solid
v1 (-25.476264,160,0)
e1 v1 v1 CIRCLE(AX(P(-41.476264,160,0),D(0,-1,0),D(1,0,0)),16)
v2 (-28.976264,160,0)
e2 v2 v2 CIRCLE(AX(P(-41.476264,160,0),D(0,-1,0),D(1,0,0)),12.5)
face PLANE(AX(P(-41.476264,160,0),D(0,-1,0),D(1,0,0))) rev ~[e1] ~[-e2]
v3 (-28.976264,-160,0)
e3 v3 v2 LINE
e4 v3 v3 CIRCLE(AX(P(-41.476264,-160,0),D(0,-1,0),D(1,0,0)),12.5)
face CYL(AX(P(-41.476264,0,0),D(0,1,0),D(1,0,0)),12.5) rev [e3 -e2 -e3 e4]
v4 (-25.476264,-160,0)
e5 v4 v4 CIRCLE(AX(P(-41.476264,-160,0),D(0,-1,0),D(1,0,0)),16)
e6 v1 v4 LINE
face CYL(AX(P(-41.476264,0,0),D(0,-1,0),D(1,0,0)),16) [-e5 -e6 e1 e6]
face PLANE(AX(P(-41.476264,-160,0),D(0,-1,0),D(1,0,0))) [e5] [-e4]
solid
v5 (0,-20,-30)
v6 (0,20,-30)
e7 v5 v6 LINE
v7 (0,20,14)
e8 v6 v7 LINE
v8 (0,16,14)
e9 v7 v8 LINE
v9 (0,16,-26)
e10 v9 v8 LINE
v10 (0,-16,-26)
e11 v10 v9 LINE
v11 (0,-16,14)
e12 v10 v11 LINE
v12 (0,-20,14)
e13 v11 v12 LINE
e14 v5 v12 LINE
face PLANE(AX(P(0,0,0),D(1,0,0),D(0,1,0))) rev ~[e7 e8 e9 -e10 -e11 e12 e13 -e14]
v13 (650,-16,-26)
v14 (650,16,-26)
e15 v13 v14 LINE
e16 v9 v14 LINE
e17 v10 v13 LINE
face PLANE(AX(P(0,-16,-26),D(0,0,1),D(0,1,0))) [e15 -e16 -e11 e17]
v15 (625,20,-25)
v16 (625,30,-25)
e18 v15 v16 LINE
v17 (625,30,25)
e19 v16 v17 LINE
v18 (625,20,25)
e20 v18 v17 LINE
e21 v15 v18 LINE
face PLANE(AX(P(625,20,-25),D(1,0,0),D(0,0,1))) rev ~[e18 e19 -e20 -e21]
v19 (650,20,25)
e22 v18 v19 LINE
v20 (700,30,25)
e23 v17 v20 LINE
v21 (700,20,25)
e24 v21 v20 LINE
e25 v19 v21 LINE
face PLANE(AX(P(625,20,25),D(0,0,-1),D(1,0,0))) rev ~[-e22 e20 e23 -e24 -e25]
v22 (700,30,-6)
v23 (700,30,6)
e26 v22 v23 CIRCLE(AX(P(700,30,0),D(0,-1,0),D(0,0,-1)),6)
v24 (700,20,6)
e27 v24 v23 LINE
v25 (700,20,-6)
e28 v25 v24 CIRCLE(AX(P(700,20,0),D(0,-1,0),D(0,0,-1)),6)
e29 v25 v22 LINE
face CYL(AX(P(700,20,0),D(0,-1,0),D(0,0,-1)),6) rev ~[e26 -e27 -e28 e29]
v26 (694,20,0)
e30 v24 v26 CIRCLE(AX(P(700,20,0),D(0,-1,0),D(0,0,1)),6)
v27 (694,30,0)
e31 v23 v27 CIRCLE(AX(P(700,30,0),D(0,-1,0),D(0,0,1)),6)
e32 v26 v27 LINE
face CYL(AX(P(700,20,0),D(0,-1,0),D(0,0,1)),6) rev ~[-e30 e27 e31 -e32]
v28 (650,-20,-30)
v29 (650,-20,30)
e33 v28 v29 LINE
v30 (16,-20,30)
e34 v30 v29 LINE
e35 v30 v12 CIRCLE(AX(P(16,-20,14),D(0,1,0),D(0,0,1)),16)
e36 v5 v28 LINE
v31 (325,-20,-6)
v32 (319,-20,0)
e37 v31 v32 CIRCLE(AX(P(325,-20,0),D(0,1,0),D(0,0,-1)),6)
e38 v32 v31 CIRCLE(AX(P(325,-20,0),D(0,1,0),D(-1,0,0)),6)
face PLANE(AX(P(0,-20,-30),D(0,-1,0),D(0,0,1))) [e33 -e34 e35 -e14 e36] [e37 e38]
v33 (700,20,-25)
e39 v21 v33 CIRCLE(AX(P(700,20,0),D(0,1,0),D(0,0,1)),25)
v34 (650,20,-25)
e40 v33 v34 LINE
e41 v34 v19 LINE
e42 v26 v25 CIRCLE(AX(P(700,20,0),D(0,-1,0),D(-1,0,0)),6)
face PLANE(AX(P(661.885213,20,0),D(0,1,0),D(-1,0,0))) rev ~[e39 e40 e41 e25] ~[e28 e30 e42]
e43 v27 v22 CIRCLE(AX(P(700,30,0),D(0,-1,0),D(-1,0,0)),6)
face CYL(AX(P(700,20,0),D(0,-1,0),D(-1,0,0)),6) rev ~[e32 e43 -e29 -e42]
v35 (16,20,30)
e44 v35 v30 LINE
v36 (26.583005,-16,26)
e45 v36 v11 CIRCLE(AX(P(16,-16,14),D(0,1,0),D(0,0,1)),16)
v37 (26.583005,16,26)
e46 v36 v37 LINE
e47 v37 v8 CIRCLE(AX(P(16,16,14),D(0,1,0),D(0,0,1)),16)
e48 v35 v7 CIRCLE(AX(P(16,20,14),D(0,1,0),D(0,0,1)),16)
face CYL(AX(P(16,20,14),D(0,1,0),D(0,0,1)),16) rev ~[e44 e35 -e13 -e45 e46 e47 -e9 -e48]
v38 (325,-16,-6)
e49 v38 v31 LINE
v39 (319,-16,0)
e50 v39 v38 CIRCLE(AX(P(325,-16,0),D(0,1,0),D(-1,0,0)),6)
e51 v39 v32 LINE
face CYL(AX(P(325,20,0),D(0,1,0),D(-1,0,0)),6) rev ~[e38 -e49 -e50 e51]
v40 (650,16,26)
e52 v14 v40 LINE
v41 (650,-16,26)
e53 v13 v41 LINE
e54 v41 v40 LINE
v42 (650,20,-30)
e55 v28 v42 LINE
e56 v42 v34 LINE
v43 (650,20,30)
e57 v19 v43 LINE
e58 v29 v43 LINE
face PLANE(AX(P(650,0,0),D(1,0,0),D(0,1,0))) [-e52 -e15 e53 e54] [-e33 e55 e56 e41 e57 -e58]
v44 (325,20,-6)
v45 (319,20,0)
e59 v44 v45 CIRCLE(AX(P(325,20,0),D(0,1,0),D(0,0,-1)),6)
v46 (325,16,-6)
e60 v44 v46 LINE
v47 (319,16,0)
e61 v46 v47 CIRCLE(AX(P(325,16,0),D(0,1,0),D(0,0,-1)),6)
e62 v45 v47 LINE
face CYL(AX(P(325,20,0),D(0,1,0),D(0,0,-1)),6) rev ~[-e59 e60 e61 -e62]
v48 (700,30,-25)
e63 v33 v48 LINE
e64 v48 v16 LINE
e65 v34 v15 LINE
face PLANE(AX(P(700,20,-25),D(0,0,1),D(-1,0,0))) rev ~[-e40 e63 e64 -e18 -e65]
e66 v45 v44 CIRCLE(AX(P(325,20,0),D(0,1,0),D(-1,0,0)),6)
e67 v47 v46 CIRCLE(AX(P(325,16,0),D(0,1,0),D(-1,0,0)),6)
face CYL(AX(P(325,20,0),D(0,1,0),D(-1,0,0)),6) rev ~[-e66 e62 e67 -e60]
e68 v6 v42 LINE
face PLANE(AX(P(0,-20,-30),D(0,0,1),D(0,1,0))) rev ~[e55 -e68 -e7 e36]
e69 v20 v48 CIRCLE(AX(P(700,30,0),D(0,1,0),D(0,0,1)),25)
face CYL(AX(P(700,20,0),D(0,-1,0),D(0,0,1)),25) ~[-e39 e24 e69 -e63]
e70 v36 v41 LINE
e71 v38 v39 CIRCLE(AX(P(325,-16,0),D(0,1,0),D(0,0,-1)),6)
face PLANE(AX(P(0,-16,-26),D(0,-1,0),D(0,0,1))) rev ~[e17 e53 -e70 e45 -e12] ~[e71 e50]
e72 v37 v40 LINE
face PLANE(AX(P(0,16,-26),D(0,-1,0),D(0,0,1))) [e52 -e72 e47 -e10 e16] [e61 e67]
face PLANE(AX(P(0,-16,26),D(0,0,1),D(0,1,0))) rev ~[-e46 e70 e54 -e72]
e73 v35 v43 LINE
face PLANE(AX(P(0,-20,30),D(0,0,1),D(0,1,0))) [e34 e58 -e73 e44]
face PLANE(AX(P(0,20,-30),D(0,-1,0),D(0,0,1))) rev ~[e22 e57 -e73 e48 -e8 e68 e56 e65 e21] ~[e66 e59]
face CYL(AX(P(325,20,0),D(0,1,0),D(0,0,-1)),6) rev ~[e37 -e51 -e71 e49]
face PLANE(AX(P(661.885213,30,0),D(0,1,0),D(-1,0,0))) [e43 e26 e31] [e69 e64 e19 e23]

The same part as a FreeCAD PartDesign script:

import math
import FreeCAD as App
import Part
import Sketcher
from FreeCAD import Vector

doc = App.newDocument("Part")
body = doc.addObject("PartDesign::Body", "Body")

# Sketch on YZ plane
sketch1 = body.newObject("Sketcher::SketchObject", "Sketch")
sketch1.AttachmentSupport = (doc.getObject("YZ_Plane"), [""])
sketch1.MapMode = "FlatFace"
sketch1.addGeometry([
    Part.LineSegment(Vector(-20, 30, 0), Vector(-20, -30, 0)),  # 0
    Part.LineSegment(Vector(-20, -30, 0), Vector(20, -30, 0)),  # 1
    Part.LineSegment(Vector(20, -30, 0), Vector(20, 30, 0)),  # 2
    Part.LineSegment(Vector(20, 30, 0), Vector(-20, 30, 0)),  # 3
    Part.LineSegment(Vector(16, -26, 0), Vector(-16, -26, 0)),  # 4
    Part.LineSegment(Vector(-16, -26, 0), Vector(-16, 26, 0)),  # 5
    Part.LineSegment(Vector(-16, 26, 0), Vector(16, 26, 0)),  # 6
    Part.LineSegment(Vector(16, 26, 0), Vector(16, -26, 0)),  # 7
], False)
sketch1.addConstraint([
    Sketcher.Constraint("Coincident", 0, 2, 1, 1),
    Sketcher.Constraint("Coincident", 1, 2, 2, 1),
    Sketcher.Constraint("Coincident", 2, 2, 3, 1),
    Sketcher.Constraint("Coincident", 3, 2, 0, 1),
    Sketcher.Constraint("Coincident", 4, 2, 5, 1),
    Sketcher.Constraint("Coincident", 5, 2, 6, 1),
    Sketcher.Constraint("Coincident", 6, 2, 7, 1),
    Sketcher.Constraint("Coincident", 7, 2, 4, 1),
    Sketcher.Constraint("Vertical", 0),
    Sketcher.Constraint("Horizontal", 1),
    Sketcher.Constraint("Vertical", 2),
    Sketcher.Constraint("Horizontal", 3),
    Sketcher.Constraint("Horizontal", 4),
    Sketcher.Constraint("Vertical", 5),
    Sketcher.Constraint("Horizontal", 6),
    Sketcher.Constraint("Vertical", 7),
    Sketcher.Constraint("Symmetric", 0, 2, 2, 2, -1, 1),
    Sketcher.Constraint("Symmetric", 4, 2, 6, 2, -1, 1),
    Sketcher.Constraint("DistanceX", 1, 1, 1, 2, 40.0),
    Sketcher.Constraint("DistanceX", 4, 2, 4, 1, 32.0),
    Sketcher.Constraint("DistanceY", 0, 2, 0, 1, 60.0),
    Sketcher.Constraint("DistanceY", 5, 1, 5, 2, 52.0),
])
pad1 = body.newObject("PartDesign::Pad", "Pad")
pad1.Profile = sketch1
pad1.Length = 650

# Sketch on XZ plane
sketch2 = body.newObject("Sketcher::SketchObject", "Sketch001")
sketch2.AttachmentSupport = (doc.getObject("XZ_Plane"), [""])
sketch2.MapMode = "FlatFace"
sketch2.AttachmentOffset = App.Placement(Vector(0, 0, -20), App.Rotation())
sketch2.addGeometry([
    Part.LineSegment(Vector(625, -25, 0), Vector(625, 25, 0)),  # 0
    Part.LineSegment(Vector(625, 25, 0), Vector(700, 25, 0)),  # 1
    Part.ArcOfCircle(Part.Circle(Vector(700, 0, 0), Vector(0, 0, 1), 25), math.radians(-90), math.radians(90)),  # 2
    Part.LineSegment(Vector(700, -25, 0), Vector(625, -25, 0)),  # 3
    Part.ArcOfCircle(Part.Circle(Vector(700, 0, 0), Vector(0, 0, 1), 6), math.radians(90), math.radians(180)),  # 4
    Part.ArcOfCircle(Part.Circle(Vector(700, 0, 0), Vector(0, 0, 1), 6), math.radians(180), math.radians(270)),  # 5
    Part.ArcOfCircle(Part.Circle(Vector(700, 0, 0), Vector(0, 0, 1), 6), math.radians(-90), math.radians(90)),  # 6
], False)
sketch2.addConstraint([
    Sketcher.Constraint("Coincident", 0, 2, 1, 1),
    Sketcher.Constraint("Tangent", 1, 2, 2, 2),
    Sketcher.Constraint("Tangent", 2, 1, 3, 1),
    Sketcher.Constraint("Coincident", 3, 2, 0, 1),
    Sketcher.Constraint("Tangent", 4, 2, 5, 1),
    Sketcher.Constraint("Tangent", 5, 2, 6, 1),
    Sketcher.Constraint("Tangent", 6, 2, 4, 1),
    Sketcher.Constraint("Vertical", 0),
    Sketcher.Constraint("Horizontal", 1),
    Sketcher.Constraint("Horizontal", 3),
    Sketcher.Constraint("Coincident", 4, 3, 2, 3),
    Sketcher.Constraint("Symmetric", 5, 2, 6, 2, -1),
    Sketcher.Constraint("PointOnObject", 4, 2, -1),
    Sketcher.Constraint("Vertical", 2, 1, 5, 2),
    Sketcher.Constraint("Radius", 2, 25.0),
    Sketcher.Constraint("Radius", 4, 6.0),
    Sketcher.Constraint("DistanceX", 1, 1, 1, 2, 75.0),
    Sketcher.Constraint("DistanceX", -1, 1, 2, 3, 700.0),
])
pad2 = body.newObject("PartDesign::Pad", "Pad001")
pad2.Profile = sketch2
pad2.Length = 10
pad2.Reversed = True

# Sketch on XZ plane
sketch3 = body.newObject("Sketcher::SketchObject", "Sketch002")
sketch3.AttachmentSupport = (doc.getObject("XZ_Plane"), [""])
sketch3.MapMode = "FlatFace"
sketch3.AttachmentOffset = App.Placement(Vector(0, 0, -20), App.Rotation())
sketch3.addGeometry([
    Part.LineSegment(Vector(0, 14, 0), Vector(0, 30, 0)),
    Part.LineSegment(Vector(0, 30, 0), Vector(16, 30, 0)),
    Part.ArcOfCircle(Part.Circle(Vector(16, 14, 0), Vector(0, 0, 1), 16), math.radians(180), math.radians(450)),
], False)
sketch3.addConstraint([
    Sketcher.Constraint("Coincident", 0, 2, 1, 1),
    Sketcher.Constraint("Tangent", 1, 2, 2, 2),
    Sketcher.Constraint("Tangent", 2, 1, 0, 1),
    Sketcher.Constraint("Vertical", 0),
    Sketcher.Constraint("Horizontal", 1),
    Sketcher.Constraint("PointOnObject", 0, 2, -2),
    Sketcher.Constraint("Radius", 2, 16.0),
    Sketcher.Constraint("DistanceY", -1, 1, 2, 3, 14.0),
])
pocket1 = body.newObject("PartDesign::Pocket", "Pocket")
pocket1.Profile = sketch3
pocket1.Length = 40
pocket1.Reversed = True

# Sketch on XZ plane
sketch4 = body.newObject("Sketcher::SketchObject", "Sketch003")
sketch4.AttachmentSupport = (doc.getObject("XZ_Plane"), [""])
sketch4.MapMode = "FlatFace"
sketch4.AttachmentOffset = App.Placement(Vector(0, 0, -20), App.Rotation())
sketch4.addGeometry([
    Part.ArcOfCircle(Part.Circle(Vector(325, 0, 0), Vector(0, 0, 1), 6), math.radians(180), math.radians(270)),
    Part.ArcOfCircle(Part.Circle(Vector(325, 0, 0), Vector(0, 0, 1), 6), math.radians(-90), math.radians(180)),
], False)
sketch4.addConstraint([
    Sketcher.Constraint("Tangent", 0, 1, 1, 2),
    Sketcher.Constraint("Coincident", 1, 1, 0, 2),
    Sketcher.Constraint("PointOnObject", 0, 3, -1),
    Sketcher.Constraint("PointOnObject", 0, 1, -1),
    Sketcher.Constraint("Vertical", 0, 3, 1, 1),
    Sketcher.Constraint("Radius", 0, 6.0),
    Sketcher.Constraint("DistanceX", -1, 1, 0, 3, 325.0),
])
pocket2 = body.newObject("PartDesign::Pocket", "Pocket001")
pocket2.Profile = sketch4
pocket2.Length = 40
pocket2.Reversed = True
body2 = doc.addObject("PartDesign::Body", "Body001")

# Sketch on XZ plane
sketch5 = body2.newObject("Sketcher::SketchObject", "Sketch004")
sketch5.AttachmentSupport = (doc.getObject("XZ_Plane001"), [""])
sketch5.MapMode = "FlatFace"
sketch5.addGeometry([
    Part.Circle(Vector(-41, 0, 0), Vector(0, 0, 1), 16),
    Part.Circle(Vector(-41, 0, 0), Vector(0, 0, 1), 12),
], False)
sketch5.addConstraint([
    Sketcher.Constraint("Coincident", 1, 3, 0, 3),
    Sketcher.Constraint("PointOnObject", 0, 3, -1),
    Sketcher.Constraint("Diameter", 0, 32.0),
    Sketcher.Constraint("Diameter", 1, 25.0),
    Sketcher.Constraint("DistanceX", 0, 3, -1, 1, 41.476264),
])
pad3 = body2.newObject("PartDesign::Pad", "Pad002")
pad3.Profile = sketch5
pad3.Length = 320
pad3.Midplane = True

doc.recompute()
